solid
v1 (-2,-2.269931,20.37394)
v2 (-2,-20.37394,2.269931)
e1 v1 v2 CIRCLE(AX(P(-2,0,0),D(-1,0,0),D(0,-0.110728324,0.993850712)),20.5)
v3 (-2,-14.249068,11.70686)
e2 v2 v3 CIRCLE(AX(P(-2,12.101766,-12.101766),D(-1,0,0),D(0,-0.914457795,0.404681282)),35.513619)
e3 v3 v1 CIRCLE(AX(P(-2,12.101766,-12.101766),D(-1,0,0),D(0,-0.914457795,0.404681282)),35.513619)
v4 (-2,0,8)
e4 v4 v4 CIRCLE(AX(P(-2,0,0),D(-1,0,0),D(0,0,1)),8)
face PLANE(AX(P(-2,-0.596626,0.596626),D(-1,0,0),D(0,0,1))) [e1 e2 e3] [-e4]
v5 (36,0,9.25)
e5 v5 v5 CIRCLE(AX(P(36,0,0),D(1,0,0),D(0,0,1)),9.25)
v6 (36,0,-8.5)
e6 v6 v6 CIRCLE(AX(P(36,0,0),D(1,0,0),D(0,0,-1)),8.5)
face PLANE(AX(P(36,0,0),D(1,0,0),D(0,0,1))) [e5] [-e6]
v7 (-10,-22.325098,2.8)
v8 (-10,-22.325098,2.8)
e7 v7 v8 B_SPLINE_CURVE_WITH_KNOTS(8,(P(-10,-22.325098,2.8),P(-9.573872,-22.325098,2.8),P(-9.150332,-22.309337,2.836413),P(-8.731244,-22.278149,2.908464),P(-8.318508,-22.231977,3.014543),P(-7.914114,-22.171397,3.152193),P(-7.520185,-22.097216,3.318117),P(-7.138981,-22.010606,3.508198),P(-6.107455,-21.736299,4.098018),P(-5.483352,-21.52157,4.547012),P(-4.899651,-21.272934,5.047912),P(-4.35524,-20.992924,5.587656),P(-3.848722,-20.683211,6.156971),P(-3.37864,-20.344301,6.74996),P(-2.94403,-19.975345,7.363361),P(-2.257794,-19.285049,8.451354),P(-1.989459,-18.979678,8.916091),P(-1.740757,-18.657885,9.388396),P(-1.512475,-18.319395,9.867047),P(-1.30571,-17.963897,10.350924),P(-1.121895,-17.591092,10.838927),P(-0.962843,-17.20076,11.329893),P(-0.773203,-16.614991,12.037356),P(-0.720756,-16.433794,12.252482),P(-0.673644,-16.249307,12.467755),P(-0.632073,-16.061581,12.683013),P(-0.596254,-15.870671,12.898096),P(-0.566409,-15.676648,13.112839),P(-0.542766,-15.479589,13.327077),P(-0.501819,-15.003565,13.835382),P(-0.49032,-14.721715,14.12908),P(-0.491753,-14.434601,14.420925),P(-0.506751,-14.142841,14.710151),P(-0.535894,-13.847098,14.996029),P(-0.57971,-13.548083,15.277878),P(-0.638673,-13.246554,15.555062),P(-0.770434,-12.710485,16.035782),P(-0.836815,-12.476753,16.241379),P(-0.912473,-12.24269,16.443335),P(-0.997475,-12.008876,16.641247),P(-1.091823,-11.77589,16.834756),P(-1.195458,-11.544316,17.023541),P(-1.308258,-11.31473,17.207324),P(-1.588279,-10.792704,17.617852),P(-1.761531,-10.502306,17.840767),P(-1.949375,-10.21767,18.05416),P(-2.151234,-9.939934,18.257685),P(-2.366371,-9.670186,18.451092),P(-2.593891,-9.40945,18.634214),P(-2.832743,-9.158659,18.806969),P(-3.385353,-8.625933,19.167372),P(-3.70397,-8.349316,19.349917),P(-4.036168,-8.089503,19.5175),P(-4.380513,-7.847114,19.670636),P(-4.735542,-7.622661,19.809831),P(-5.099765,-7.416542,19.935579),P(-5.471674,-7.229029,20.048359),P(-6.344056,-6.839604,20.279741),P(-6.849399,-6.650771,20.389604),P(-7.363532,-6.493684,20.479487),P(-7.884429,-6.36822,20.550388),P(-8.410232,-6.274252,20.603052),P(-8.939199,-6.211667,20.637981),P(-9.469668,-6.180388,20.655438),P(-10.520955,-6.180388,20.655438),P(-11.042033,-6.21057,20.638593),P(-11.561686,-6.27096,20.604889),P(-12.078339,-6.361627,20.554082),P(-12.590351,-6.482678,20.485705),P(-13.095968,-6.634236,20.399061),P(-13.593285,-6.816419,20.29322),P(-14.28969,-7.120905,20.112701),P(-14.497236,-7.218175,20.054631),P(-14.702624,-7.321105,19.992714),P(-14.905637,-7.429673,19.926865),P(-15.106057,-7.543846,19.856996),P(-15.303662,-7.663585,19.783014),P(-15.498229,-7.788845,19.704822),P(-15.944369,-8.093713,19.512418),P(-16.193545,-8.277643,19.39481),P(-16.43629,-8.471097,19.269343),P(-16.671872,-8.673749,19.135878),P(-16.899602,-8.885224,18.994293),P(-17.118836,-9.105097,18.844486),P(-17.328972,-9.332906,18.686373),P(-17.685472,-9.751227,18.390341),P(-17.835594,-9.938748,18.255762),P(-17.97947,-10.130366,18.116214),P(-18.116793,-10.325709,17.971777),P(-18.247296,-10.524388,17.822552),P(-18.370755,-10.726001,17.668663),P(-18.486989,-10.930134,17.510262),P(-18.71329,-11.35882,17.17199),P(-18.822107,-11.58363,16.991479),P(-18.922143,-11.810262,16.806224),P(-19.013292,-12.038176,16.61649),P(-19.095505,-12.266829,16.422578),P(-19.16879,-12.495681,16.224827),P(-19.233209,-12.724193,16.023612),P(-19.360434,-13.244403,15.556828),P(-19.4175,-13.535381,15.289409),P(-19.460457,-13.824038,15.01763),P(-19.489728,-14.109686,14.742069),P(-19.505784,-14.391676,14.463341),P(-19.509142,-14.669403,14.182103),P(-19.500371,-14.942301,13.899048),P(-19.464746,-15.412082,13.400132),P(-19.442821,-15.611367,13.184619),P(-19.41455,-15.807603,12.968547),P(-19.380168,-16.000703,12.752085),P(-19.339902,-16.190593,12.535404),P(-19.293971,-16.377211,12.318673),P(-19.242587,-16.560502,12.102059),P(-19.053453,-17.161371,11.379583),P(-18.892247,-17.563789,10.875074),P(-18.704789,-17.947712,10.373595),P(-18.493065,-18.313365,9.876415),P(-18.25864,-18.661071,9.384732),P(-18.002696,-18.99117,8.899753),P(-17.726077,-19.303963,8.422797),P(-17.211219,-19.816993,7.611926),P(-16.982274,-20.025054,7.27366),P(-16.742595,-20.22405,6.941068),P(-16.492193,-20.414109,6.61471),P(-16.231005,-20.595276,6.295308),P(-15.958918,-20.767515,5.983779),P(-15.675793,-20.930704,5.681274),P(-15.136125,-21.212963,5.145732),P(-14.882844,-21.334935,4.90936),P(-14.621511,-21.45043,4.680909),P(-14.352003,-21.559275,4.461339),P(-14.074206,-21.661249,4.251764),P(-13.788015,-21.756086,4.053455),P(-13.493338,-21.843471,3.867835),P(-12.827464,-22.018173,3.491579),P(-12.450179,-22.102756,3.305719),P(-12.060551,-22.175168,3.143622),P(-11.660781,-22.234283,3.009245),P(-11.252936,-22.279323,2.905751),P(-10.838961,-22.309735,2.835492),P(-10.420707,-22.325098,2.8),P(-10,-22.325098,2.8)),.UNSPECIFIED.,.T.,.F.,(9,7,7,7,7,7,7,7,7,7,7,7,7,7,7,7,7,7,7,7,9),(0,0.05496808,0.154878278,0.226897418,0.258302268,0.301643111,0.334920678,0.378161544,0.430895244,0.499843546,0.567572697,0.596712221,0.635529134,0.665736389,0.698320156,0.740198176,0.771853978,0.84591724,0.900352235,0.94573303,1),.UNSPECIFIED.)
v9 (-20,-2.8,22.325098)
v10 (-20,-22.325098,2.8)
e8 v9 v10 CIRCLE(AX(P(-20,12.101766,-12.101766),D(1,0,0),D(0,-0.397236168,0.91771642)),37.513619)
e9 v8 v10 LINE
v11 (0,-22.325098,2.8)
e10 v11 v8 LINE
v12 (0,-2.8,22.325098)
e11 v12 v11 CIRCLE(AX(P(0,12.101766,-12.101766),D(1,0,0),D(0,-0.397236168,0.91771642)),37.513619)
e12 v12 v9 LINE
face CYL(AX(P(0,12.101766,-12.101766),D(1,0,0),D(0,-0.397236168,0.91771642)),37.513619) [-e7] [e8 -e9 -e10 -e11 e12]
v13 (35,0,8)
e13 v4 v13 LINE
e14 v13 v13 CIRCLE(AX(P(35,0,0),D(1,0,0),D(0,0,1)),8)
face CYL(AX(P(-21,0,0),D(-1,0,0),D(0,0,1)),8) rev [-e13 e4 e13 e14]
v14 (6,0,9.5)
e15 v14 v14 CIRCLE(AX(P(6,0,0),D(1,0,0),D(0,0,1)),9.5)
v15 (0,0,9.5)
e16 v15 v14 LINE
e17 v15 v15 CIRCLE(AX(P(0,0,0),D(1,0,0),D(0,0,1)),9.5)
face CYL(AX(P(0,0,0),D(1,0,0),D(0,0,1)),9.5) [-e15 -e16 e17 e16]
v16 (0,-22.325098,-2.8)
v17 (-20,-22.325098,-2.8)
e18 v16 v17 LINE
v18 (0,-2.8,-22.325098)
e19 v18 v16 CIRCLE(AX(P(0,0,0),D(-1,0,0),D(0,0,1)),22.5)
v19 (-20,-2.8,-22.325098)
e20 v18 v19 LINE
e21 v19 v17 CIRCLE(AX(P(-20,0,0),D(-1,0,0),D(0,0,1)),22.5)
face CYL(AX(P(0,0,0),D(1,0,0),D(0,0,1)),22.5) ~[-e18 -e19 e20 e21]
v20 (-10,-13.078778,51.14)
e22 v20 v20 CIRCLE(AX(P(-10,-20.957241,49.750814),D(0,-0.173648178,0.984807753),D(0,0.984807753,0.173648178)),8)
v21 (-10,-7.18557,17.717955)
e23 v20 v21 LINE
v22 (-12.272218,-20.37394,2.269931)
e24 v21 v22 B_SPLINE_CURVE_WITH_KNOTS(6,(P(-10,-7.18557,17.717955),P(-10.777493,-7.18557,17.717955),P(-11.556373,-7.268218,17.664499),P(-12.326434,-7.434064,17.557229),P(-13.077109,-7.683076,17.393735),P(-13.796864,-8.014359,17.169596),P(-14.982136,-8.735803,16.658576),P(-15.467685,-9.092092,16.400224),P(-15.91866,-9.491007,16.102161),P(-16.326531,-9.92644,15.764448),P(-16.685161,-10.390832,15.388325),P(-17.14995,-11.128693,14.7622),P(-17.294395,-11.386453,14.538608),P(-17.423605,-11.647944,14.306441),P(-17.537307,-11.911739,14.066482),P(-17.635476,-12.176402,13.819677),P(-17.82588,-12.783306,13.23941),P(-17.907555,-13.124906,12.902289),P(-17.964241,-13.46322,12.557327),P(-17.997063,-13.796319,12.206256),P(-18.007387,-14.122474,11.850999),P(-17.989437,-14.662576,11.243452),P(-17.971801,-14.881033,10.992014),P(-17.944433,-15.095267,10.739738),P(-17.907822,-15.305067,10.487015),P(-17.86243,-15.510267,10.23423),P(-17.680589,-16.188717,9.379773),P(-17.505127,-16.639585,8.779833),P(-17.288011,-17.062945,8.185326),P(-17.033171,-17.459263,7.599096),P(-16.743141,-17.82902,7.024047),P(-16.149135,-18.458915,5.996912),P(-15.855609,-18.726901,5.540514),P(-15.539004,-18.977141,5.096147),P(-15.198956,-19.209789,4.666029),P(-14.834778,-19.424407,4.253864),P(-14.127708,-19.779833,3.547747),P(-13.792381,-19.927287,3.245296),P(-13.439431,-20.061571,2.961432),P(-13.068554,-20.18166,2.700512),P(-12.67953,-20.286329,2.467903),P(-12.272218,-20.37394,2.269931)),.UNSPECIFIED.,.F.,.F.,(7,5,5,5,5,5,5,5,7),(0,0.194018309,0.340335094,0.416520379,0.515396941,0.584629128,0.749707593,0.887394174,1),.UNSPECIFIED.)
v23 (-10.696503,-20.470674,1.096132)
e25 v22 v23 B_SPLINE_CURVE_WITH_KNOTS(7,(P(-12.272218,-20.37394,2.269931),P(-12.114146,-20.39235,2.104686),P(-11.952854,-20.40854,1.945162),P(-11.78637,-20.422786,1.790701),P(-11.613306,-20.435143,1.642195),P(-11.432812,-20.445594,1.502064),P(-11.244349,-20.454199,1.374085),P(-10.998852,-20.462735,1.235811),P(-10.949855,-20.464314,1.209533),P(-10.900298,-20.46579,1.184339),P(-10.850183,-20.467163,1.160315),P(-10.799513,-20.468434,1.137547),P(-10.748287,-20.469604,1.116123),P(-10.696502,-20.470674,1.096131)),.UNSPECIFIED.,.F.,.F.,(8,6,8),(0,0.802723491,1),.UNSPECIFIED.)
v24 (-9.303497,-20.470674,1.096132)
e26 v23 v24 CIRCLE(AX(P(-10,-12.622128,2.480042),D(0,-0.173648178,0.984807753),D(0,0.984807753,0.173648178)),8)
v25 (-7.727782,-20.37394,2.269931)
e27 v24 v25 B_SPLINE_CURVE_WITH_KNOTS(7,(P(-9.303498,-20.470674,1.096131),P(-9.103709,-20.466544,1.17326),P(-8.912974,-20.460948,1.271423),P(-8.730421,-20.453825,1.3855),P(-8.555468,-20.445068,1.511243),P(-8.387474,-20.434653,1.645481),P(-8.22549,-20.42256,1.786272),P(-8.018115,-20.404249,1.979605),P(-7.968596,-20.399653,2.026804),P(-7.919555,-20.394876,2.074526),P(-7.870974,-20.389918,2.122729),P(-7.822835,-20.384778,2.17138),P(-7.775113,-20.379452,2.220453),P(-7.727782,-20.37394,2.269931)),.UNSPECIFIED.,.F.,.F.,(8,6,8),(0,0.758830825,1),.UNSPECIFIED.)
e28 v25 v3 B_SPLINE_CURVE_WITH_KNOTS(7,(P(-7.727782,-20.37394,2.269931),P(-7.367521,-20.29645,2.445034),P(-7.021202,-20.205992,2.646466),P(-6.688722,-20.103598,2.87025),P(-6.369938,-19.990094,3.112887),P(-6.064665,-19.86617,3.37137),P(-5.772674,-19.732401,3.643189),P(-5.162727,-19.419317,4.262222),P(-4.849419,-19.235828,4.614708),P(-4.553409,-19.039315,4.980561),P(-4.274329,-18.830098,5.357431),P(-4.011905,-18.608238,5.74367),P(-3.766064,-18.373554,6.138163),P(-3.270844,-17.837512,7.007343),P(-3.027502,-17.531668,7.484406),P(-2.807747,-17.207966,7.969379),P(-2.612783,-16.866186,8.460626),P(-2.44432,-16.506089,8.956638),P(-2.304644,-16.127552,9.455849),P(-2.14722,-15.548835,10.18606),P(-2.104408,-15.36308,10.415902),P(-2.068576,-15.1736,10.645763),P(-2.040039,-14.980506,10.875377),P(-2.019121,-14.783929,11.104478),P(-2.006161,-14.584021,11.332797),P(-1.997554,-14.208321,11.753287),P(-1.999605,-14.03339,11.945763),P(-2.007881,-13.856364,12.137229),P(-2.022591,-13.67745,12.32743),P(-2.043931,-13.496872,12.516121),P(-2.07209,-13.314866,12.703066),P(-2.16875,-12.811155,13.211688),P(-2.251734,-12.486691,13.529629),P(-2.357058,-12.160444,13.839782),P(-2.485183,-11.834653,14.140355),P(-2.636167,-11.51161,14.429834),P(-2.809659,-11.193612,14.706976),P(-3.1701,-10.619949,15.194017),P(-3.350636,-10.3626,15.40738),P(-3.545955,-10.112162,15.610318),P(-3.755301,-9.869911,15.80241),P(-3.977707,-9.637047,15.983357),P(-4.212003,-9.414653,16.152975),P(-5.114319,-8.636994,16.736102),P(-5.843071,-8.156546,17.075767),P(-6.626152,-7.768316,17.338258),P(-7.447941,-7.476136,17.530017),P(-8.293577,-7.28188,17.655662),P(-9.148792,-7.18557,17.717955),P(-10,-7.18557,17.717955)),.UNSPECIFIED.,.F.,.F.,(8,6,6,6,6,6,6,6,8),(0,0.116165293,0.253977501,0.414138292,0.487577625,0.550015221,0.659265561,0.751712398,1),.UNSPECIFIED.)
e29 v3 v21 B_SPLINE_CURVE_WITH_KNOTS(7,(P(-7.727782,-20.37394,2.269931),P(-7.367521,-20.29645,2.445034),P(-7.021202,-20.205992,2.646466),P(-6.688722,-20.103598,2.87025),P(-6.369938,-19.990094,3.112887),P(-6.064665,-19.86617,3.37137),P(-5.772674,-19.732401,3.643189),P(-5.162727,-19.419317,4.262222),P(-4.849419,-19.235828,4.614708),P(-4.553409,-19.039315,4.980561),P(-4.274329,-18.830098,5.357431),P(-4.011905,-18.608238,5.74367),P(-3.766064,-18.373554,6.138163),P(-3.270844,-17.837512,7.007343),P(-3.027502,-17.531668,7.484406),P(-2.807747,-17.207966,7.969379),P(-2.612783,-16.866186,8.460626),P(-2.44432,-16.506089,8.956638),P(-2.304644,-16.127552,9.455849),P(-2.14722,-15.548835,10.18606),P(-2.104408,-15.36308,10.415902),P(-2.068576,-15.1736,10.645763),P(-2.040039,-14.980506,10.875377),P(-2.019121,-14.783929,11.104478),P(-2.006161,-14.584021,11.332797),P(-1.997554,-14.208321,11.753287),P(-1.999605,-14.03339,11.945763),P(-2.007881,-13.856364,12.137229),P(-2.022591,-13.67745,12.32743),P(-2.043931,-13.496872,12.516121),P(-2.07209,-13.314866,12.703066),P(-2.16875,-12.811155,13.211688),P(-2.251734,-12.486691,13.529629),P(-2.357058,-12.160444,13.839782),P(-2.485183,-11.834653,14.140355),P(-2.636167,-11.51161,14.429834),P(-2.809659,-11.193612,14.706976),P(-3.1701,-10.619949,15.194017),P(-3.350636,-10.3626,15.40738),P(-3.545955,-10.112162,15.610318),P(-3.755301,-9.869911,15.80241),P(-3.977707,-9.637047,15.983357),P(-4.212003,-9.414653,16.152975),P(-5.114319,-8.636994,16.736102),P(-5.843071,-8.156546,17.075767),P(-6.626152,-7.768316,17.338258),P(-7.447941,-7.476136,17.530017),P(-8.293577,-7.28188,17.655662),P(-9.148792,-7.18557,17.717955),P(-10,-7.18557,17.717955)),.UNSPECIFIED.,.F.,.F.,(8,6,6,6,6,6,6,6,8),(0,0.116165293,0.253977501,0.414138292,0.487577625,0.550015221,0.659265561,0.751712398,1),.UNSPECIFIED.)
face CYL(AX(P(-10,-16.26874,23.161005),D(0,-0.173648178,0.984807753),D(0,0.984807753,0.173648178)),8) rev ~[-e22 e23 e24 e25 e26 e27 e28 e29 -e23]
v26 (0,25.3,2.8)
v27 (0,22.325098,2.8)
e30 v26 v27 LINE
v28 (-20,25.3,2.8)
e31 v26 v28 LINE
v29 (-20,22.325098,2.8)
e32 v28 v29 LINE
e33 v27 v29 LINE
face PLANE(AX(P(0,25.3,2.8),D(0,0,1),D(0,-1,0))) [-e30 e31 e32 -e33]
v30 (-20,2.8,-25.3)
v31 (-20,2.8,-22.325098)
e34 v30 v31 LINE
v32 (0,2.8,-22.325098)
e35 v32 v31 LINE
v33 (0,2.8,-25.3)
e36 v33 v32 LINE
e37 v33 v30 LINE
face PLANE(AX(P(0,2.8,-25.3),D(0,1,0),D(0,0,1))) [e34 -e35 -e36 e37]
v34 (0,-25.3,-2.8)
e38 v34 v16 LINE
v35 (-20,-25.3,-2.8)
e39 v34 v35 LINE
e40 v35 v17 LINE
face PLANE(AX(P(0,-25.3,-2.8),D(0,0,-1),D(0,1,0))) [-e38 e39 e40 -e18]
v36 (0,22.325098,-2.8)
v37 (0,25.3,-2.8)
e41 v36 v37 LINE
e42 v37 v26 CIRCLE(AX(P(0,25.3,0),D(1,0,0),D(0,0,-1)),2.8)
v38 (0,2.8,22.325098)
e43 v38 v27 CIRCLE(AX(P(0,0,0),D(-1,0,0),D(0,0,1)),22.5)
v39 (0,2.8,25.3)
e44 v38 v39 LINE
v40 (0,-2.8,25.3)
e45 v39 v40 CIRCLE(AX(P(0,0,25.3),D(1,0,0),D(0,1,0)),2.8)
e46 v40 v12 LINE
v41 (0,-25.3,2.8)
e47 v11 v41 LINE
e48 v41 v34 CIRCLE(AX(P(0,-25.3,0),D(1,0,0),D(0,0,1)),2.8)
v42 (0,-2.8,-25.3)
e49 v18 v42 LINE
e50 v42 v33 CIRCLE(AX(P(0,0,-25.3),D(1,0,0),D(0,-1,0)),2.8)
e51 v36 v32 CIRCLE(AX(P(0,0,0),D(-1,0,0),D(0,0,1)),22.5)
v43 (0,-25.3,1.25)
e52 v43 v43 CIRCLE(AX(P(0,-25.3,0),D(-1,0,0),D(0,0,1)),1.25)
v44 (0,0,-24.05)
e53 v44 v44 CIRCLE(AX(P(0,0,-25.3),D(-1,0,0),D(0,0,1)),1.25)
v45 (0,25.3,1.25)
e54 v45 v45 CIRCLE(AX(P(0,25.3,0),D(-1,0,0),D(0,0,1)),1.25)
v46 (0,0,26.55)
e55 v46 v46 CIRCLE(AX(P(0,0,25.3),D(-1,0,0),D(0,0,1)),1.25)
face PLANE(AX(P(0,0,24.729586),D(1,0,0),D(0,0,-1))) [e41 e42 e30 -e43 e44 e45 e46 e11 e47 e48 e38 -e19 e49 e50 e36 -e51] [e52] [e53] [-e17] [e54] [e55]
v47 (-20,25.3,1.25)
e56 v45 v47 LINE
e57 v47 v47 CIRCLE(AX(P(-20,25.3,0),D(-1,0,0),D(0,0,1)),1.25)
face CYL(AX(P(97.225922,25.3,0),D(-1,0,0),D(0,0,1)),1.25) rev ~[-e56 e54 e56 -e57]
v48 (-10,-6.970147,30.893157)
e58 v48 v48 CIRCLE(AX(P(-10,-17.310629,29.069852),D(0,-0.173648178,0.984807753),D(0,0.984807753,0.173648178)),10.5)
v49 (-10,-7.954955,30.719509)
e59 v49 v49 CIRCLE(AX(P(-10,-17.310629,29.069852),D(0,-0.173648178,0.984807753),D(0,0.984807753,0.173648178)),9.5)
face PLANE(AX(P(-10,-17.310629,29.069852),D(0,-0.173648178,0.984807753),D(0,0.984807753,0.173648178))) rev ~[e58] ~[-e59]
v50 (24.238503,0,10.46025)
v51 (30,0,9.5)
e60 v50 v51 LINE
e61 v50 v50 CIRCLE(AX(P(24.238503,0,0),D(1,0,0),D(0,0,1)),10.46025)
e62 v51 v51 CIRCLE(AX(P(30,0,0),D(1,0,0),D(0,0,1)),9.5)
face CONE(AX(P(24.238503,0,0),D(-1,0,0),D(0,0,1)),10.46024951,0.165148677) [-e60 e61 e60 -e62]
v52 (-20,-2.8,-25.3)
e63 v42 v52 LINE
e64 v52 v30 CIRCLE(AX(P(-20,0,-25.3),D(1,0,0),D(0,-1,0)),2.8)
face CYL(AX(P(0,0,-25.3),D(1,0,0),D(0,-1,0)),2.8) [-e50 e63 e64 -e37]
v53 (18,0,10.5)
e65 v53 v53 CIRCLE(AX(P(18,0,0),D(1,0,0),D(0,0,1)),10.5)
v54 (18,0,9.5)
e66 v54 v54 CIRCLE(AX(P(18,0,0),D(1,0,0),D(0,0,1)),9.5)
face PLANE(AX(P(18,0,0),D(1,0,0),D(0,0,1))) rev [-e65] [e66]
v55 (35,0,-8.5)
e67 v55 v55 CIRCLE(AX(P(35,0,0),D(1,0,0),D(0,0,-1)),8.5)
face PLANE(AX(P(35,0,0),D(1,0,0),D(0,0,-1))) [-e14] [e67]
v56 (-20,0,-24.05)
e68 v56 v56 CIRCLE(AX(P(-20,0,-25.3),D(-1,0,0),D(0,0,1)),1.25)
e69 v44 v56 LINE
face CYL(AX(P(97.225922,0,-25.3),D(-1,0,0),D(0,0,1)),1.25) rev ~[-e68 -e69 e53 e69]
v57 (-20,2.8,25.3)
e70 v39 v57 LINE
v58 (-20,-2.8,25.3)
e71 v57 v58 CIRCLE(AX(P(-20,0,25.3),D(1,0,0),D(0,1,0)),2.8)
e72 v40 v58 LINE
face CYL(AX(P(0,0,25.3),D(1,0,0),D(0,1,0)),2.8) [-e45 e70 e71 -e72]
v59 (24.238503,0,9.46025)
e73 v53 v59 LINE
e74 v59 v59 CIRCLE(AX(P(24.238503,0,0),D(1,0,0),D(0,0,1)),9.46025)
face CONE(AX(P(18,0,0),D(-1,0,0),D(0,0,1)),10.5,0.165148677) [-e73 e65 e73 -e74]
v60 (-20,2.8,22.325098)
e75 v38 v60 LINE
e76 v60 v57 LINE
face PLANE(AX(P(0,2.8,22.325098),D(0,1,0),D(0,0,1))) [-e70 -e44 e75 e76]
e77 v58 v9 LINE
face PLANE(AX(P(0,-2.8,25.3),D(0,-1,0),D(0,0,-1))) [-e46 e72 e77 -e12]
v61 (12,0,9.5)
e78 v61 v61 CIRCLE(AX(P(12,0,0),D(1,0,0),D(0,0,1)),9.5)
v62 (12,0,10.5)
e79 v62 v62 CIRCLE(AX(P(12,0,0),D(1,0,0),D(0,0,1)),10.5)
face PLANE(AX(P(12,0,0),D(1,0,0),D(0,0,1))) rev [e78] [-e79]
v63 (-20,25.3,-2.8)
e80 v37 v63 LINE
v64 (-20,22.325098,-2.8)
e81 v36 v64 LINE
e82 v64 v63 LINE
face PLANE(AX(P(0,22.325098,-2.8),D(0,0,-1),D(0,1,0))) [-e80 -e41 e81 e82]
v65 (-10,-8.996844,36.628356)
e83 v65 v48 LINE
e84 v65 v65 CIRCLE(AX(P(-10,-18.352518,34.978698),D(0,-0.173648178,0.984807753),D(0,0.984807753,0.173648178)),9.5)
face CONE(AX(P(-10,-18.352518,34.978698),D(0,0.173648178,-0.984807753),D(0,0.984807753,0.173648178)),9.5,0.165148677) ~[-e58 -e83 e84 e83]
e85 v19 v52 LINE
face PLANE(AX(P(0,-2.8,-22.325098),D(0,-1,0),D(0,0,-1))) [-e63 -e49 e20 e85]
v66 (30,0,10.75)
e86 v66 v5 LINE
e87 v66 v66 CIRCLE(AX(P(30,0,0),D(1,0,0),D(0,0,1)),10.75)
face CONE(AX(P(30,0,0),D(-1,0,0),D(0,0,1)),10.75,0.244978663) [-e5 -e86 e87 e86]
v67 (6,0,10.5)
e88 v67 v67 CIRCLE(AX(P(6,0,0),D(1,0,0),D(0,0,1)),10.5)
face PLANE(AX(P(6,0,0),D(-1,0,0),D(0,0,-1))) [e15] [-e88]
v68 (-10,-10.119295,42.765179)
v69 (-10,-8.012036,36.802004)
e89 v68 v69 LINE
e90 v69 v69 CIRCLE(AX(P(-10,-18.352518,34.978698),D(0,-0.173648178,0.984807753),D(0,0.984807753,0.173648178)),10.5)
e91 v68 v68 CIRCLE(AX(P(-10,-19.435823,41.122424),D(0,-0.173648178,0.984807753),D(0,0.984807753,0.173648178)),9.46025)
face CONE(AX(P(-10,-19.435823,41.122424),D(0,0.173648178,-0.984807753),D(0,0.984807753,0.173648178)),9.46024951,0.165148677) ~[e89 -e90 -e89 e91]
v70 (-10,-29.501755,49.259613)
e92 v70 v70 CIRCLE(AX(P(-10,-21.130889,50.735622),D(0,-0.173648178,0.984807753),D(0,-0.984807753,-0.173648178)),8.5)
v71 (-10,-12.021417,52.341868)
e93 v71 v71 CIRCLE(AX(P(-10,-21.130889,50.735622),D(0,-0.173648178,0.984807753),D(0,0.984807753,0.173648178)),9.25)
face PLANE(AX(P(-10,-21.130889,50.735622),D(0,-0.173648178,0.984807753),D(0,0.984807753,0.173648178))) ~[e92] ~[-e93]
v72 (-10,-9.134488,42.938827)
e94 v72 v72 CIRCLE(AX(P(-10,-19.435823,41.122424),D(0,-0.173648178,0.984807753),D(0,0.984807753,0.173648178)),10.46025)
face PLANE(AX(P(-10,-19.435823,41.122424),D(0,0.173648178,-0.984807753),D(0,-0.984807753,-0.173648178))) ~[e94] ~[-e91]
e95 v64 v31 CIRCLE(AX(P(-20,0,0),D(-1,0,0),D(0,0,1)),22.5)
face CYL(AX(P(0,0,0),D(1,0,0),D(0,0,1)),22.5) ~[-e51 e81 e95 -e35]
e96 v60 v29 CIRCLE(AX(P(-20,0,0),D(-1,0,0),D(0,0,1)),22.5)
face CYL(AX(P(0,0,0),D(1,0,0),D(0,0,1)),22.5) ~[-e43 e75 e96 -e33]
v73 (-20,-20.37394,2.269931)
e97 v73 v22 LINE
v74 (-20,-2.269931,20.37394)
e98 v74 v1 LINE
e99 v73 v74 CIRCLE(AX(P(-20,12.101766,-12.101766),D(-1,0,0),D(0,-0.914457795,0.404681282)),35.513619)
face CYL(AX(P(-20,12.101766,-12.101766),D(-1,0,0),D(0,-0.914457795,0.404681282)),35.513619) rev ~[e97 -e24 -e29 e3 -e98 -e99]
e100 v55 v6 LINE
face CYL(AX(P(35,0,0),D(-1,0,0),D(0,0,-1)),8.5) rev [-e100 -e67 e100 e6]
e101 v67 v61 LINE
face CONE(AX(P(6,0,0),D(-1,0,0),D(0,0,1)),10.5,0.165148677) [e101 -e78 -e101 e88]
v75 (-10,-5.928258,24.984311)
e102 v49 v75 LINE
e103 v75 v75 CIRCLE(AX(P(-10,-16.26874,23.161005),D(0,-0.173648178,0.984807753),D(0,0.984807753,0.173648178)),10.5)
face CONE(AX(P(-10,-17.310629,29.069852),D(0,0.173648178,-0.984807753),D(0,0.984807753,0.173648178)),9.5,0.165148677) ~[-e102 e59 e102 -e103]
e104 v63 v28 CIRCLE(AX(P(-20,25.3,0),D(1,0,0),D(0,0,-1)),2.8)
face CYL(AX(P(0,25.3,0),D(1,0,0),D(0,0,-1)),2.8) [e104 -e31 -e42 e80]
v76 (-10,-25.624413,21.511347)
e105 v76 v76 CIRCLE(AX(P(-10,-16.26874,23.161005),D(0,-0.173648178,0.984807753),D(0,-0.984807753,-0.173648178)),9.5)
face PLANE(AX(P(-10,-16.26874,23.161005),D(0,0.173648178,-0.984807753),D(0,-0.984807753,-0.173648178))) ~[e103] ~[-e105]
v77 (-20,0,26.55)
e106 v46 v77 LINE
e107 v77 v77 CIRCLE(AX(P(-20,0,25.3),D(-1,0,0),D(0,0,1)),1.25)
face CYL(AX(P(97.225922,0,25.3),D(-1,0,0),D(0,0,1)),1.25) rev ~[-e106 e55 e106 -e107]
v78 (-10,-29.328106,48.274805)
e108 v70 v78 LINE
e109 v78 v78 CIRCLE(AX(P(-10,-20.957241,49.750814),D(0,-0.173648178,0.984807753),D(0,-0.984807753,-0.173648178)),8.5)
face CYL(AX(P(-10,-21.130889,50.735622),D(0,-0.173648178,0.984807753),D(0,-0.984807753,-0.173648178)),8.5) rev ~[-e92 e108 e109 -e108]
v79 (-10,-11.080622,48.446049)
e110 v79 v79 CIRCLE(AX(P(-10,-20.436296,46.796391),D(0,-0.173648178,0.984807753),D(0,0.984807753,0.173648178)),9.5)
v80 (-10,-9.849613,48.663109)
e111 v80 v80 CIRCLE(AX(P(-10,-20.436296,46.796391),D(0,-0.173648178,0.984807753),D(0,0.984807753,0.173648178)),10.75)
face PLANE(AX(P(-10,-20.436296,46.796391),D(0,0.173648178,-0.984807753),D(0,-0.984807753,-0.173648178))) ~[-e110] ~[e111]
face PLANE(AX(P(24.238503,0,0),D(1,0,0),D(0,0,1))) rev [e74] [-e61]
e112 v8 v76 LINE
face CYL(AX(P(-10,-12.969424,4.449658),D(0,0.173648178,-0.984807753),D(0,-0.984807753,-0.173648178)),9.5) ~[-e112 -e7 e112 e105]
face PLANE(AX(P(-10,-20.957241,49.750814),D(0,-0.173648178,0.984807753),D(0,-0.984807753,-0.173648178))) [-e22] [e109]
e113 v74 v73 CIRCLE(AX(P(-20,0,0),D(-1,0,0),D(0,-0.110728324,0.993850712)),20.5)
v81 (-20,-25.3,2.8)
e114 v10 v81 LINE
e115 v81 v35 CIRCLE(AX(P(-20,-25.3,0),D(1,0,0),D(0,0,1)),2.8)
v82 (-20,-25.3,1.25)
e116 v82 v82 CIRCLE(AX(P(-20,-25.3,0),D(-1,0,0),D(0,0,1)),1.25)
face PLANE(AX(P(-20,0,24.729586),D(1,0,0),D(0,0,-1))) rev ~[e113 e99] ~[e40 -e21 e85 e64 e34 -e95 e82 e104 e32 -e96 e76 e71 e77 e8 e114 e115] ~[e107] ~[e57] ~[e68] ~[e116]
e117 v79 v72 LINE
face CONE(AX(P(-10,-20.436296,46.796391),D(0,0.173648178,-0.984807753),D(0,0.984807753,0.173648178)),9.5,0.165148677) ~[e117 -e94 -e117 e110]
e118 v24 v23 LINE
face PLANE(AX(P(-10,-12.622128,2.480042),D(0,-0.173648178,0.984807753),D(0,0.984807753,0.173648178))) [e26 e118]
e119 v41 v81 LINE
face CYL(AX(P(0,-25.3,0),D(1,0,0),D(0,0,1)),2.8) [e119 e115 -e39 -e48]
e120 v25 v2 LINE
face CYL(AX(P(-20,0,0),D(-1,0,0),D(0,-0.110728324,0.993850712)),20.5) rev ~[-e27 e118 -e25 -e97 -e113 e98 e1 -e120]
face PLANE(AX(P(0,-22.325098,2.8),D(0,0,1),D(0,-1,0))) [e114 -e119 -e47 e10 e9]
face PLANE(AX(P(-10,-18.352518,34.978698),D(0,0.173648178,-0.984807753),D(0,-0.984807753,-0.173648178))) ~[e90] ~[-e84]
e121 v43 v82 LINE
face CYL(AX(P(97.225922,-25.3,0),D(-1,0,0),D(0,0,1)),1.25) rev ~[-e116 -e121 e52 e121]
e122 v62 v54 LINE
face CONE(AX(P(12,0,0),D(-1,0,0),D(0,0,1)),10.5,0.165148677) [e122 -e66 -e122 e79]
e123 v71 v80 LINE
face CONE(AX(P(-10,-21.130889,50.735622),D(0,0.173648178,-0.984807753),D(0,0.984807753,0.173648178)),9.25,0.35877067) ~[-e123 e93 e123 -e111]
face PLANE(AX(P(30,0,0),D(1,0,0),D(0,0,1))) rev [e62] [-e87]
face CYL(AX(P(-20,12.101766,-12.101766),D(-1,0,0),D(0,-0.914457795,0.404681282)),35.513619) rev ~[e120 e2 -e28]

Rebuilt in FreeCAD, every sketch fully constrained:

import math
import FreeCAD as App
import Part
import Sketcher
from FreeCAD import Vector
Q = App.Units.Quantity

doc = App.newDocument("Part")
params = doc.addObject("Spreadsheet::Sheet", "Params")
for row, (alias, value) in enumerate([
    ("sketch1_width", "6 mm"),
    ("sketch1_width2", "36 mm"),
    ("sketch1_height", "1 mm"),
    ("sketch1_height2", "1.5 mm"),
    ("sketch1_height3", "1.25 mm"),
    ("revolution_angle", "360 deg"),
    ("sketch2_diameter", "45 mm"),
    ("pad1_length", "20 mm"),
    ("sketch3_diameter", "17 mm"),
    ("sketch3_diameter2", "16 mm"),
    ("pocket1_length", "1 mm"),
    ("sketch4_radius", "22.5 mm"),
    ("sketch4_radius2", "2.8 mm"),
    ("pad2_length", "20 mm"),
    ("sketch5_diameter", "2.5 mm"),
    ("hole_diameter", "2.5 mm"),
    ("sketch6_radius", "22.5 mm"),
    ("sketch7_diameter", "19 mm"),
    ("pad3_length", "19 mm"),
    ("sketch8_length", "1 mm"),
    ("sketch8_length2", "28 mm"),
    ("sketch8_length3", "1 mm"),
    ("sketch8_length4", "1 mm"),
    ("sketch8_length5", "28 mm"),
    ("revolution2_angle", "360 deg"),
    ("sketch9_radius", "20.5 mm"),
    ("pocket3_length", "18 mm"),
    ("sketch10_diameter", "16 mm"),
    ("pocket4_length", "21 mm"),
    ("sketch11_diameter", "16 mm"),
    ("pocket5_length", "21 mm"),
    ("sketch12_diameter", "17 mm"),
    ("sketch12_diameter2", "16 mm"),
    ("pocket6_length", "1 mm"),
], start=1):
    params.set(f"A{row}", alias)
    params.set(f"B{row}", "=" + value)
    params.setAlias(f"B{row}", alias)

body = doc.addObject("PartDesign::Body", "Body")

# Sketch on XY plane
sketch1 = body.newObject("Sketcher::SketchObject", "Sketch")
sketch1.AttachmentSupport = (doc.getObject("XY_Plane"), [""])
sketch1.MapMode = "FlatFace"
sketch1.addGeometry(Part.LineSegment(Vector(6, 10.5, 0), Vector(6, 9.5, 0)), False)
sketch1.addGeometry(Part.LineSegment(Vector(6, 9.5, 0), Vector(0, 9.5, 0)), False)
sketch1.addGeometry(Part.LineSegment(Vector(0, 9.5, 0), Vector(0, 8, 0)), False)
sketch1.addGeometry(Part.LineSegment(Vector(0, 8, 0), Vector(36, 8, 0)), False)
sketch1.addGeometry(Part.LineSegment(Vector(36, 8, 0), Vector(36, 9.2, 0)), False)
sketch1.addGeometry(Part.LineSegment(Vector(36, 9.2, 0), Vector(30, 10.8, 0)), False)
sketch1.addGeometry(Part.LineSegment(Vector(30, 10.8, 0), Vector(30, 9.5, 0)), False)
sketch1.addGeometry(Part.LineSegment(Vector(30, 9.5, 0), Vector(24.2, 10.5, 0)), False)
sketch1.addGeometry(Part.LineSegment(Vector(24.2, 10.5, 0), Vector(24.2, 9.5, 0)), False)
sketch1.addGeometry(Part.LineSegment(Vector(24.2, 9.5, 0), Vector(18, 10.5, 0)), False)
sketch1.addGeometry(Part.LineSegment(Vector(18, 10.5, 0), Vector(18, 9.5, 0)), False)
sketch1.addGeometry(Part.LineSegment(Vector(18, 9.5, 0), Vector(12, 10.5, 0)), False)
sketch1.addGeometry(Part.LineSegment(Vector(12, 10.5, 0), Vector(12, 9.5, 0)), False)
sketch1.addGeometry(Part.LineSegment(Vector(12, 9.5, 0), Vector(6, 10.5, 0)), False)
sketch1.addConstraint(Sketcher.Constraint("Coincident", 0, 2, 1, 1))
sketch1.addConstraint(Sketcher.Constraint("Coincident", 1, 2, 2, 1))
sketch1.addConstraint(Sketcher.Constraint("Coincident", 2, 2, 3, 1))
sketch1.addConstraint(Sketcher.Constraint("Coincident", 3, 2, 4, 1))
sketch1.addConstraint(Sketcher.Constraint("Coincident", 4, 2, 5, 1))
sketch1.addConstraint(Sketcher.Constraint("Coincident", 5, 2, 6, 1))
sketch1.addConstraint(Sketcher.Constraint("Coincident", 6, 2, 7, 1))
sketch1.addConstraint(Sketcher.Constraint("Coincident", 7, 2, 8, 1))
sketch1.addConstraint(Sketcher.Constraint("Coincident", 8, 2, 9, 1))
sketch1.addConstraint(Sketcher.Constraint("Coincident", 9, 2, 10, 1))
sketch1.addConstraint(Sketcher.Constraint("Coincident", 10, 2, 11, 1))
sketch1.addConstraint(Sketcher.Constraint("Coincident", 11, 2, 12, 1))
sketch1.addConstraint(Sketcher.Constraint("Coincident", 12, 2, 13, 1))
sketch1.addConstraint(Sketcher.Constraint("Coincident", 13, 2, 0, 1))
sketch1.addConstraint(Sketcher.Constraint("Vertical", 0))
sketch1.addConstraint(Sketcher.Constraint("Horizontal", 1))
sketch1.addConstraint(Sketcher.Constraint("Vertical", 2))
sketch1.addConstraint(Sketcher.Constraint("Horizontal", 3))
sketch1.addConstraint(Sketcher.Constraint("Vertical", 4))
sketch1.addConstraint(Sketcher.Constraint("Vertical", 6))
sketch1.addConstraint(Sketcher.Constraint("Vertical", 8))
sketch1.addConstraint(Sketcher.Constraint("Vertical", 10))
sketch1.addConstraint(Sketcher.Constraint("Vertical", 12))
sketch1.addConstraint(Sketcher.Constraint("PointOnObject", 1, 2, -2))
sketch1.addConstraint(Sketcher.Constraint("Parallel", 7, 9))
sketch1.addConstraint(Sketcher.Constraint("Parallel", 9, 11))
sketch1.addConstraint(Sketcher.Constraint("Parallel", 11, 13))
sketch1.addConstraint(Sketcher.Constraint("Horizontal", 1, 2, 6, 2))
sketch1.addConstraint(Sketcher.Constraint("Horizontal", 6, 2, 10, 2))
sketch1.addConstraint(Sketcher.Constraint("Horizontal", 9, 2, 11, 2))
sketch1.addConstraint(Sketcher.Constraint("Horizontal", 10, 2, 12, 2))
sketch1.addConstraint(Sketcher.Constraint("Horizontal", 11, 2, 13, 2))
sketch1.addConstraint(Sketcher.Constraint("Equal", 4, 6))
sketch1.addConstraint(Sketcher.Constraint("Equal", 0, 8))
sketch1.addConstraint(Sketcher.Constraint("DistanceX", 1, 2, 1, 1, Q("6 mm")))
sketch1.addConstraint(Sketcher.Constraint("DistanceX", 3, 1, 3, 2, Q("36 mm")))
sketch1.addConstraint(Sketcher.Constraint("DistanceY", 0, 2, 0, 1, Q("1 mm")))
sketch1.addConstraint(Sketcher.Constraint("DistanceY", 2, 2, 2, 1, Q("1.5 mm")))
sketch1.addConstraint(Sketcher.Constraint("DistanceY", -1, 1, 2, 2, Q("8 mm")))
sketch1.addConstraint(Sketcher.Constraint("DistanceX", -1, 1, 5, 2, Q("30 mm")))
sketch1.addConstraint(Sketcher.Constraint("DistanceY", 4, 1, 4, 2, Q("1.25 mm")))
sketch1.addConstraint(Sketcher.Constraint("Distance", 7, Q("5.84097 mm")))
sketch1.setExpression("Constraints[34]", "Params.sketch1_width")
sketch1.setExpression("Constraints[35]", "Params.sketch1_width2")
sketch1.setExpression("Constraints[36]", "Params.sketch1_height")
sketch1.setExpression("Constraints[37]", "Params.sketch1_height2")
sketch1.setExpression("Constraints[40]", "Params.sketch1_height3")
revolution = body.newObject("PartDesign::Revolution", "Revolution")
revolution.Profile = sketch1
revolution.ReferenceAxis = (sketch1, ["H_Axis"])
revolution.setExpression("Angle", "Params.revolution_angle")

# Sketch on YZ plane
sketch2 = body.newObject("Sketcher::SketchObject", "Sketch001")
sketch2.AttachmentSupport = (doc.getObject("YZ_Plane"), [""])
sketch2.MapMode = "FlatFace"
sketch2.addGeometry(Part.Circle(Vector(0, 0, 0), Vector(0, 0, 1), 22), False)
sketch2.addConstraint(Sketcher.Constraint("Coincident", 0, 3, -1, 1))
sketch2.addConstraint(Sketcher.Constraint("Diameter", 0, Q("45 mm")))
sketch2.setExpression("Constraints[1]", "Params.sketch2_diameter")
pad1 = body.newObject("PartDesign::Pad", "Pad")
pad1.Profile = sketch2
pad1.setExpression("Length", "Params.pad1_length")
pad1.Reversed = True

# Sketch on YZ plane
sketch3 = body.newObject("Sketcher::SketchObject", "Sketch002")
sketch3.AttachmentSupport = (doc.getObject("YZ_Plane"), [""])
sketch3.MapMode = "FlatFace"
sketch3.AttachmentOffset = App.Placement(Vector(0, 0, 35), App.Rotation())
sketch3.addGeometry(Part.Circle(Vector(0, 0, 0), Vector(0, 0, 1), 8), False)
sketch3.addGeometry(Part.Circle(Vector(0, 0, 0), Vector(0, 0, 1), 8), False)
sketch3.addConstraint(Sketcher.Constraint("Coincident", 0, 3, -1, 1))
sketch3.addConstraint(Sketcher.Constraint("Coincident", 1, 3, -1, 1))
sketch3.addConstraint(Sketcher.Constraint("Diameter", 0, Q("17 mm")))
sketch3.addConstraint(Sketcher.Constraint("Diameter", 1, Q("16 mm")))
sketch3.setExpression("Constraints[2]", "Params.sketch3_diameter")
sketch3.setExpression("Constraints[3]", "Params.sketch3_diameter2")
pocket1 = body.newObject("PartDesign::Pocket", "Pocket")
pocket1.Profile = sketch3
pocket1.setExpression("Length", "Params.pocket1_length")
pocket1.Reversed = True

# Sketch on YZ plane
sketch4 = body.newObject("Sketcher::SketchObject", "Sketch003")
sketch4.AttachmentSupport = (doc.getObject("YZ_Plane"), [""])
sketch4.MapMode = "FlatFace"
sketch4.addGeometry(Part.LineSegment(Vector(2.8, -25.3, 0), Vector(2.8, -22.3, 0)), False)
sketch4.addGeometry(Part.ArcOfCircle(Part.Circle(Vector(0, 0, 0), Vector(0, 0, 1), 22.5), math.radians(-97.15), math.radians(-82.85)), False)
sketch4.addGeometry(Part.LineSegment(Vector(-2.8, -22.3, 0), Vector(-2.8, -25.3, 0)), False)
sketch4.addGeometry(Part.ArcOfCircle(Part.Circle(Vector(0, -25.3, 0), Vector(0, 0, 1), 2.8), math.radians(180), math.radians(360)), False)
sketch4.addGeometry(Part.LineSegment(Vector(25.3, 2.8, 0), Vector(22.3, 2.8, 0)), False)
sketch4.addGeometry(Part.ArcOfCircle(Part.Circle(Vector(0, 0, 0), Vector(0, 0, 1), 22.5), math.radians(-7.15), math.radians(7.15)), False)
sketch4.addGeometry(Part.LineSegment(Vector(22.3, -2.8, 0), Vector(25.3, -2.8, 0)), False)
sketch4.addGeometry(Part.ArcOfCircle(Part.Circle(Vector(25.3, 0, 0), Vector(0, 0, 1), 2.8), math.radians(-90), math.radians(90)), False)
sketch4.addGeometry(Part.LineSegment(Vector(-25.3, -2.8, 0), Vector(-22.3, -2.8, 0)), False)
sketch4.addGeometry(Part.ArcOfCircle(Part.Circle(Vector(0, 0, 0), Vector(0, 0, 1), 22.5), math.radians(172.85), math.radians(187.15)), False)
sketch4.addGeometry(Part.LineSegment(Vector(-22.3, 2.8, 0), Vector(-25.3, 2.8, 0)), False)
sketch4.addGeometry(Part.ArcOfCircle(Part.Circle(Vector(-25.3, 0, 0), Vector(0, 0, 1), 2.8), math.radians(90), math.radians(270)), False)
sketch4.addGeometry(Part.LineSegment(Vector(-2.8, 25.3, 0), Vector(-2.8, 22.3, 0)), False)
sketch4.addGeometry(Part.ArcOfCircle(Part.Circle(Vector(0, 0, 0), Vector(0, 0, 1), 22.5), math.radians(82.85), math.radians(97.15)), False)
sketch4.addGeometry(Part.LineSegment(Vector(2.8, 22.3, 0), Vector(2.8, 25.3, 0)), False)
sketch4.addGeometry(Part.ArcOfCircle(Part.Circle(Vector(0, 25.3, 0), Vector(0, 0, 1), 2.8), math.radians(0), math.radians(180)), False)
sketch4.addConstraint(Sketcher.Constraint("Coincident", 0, 2, 1, 2))
sketch4.addConstraint(Sketcher.Constraint("Coincident", 1, 1, 2, 1))
sketch4.addConstraint(Sketcher.Constraint("Tangent", 2, 2, 3, 1))
sketch4.addConstraint(Sketcher.Constraint("Tangent", 3, 2, 0, 1))
sketch4.addConstraint(Sketcher.Constraint("Coincident", 4, 2, 5, 2))
sketch4.addConstraint(Sketcher.Constraint("Coincident", 5, 1, 6, 1))
sketch4.addConstraint(Sketcher.Constraint("Tangent", 6, 2, 7, 1))
sketch4.addConstraint(Sketcher.Constraint("Tangent", 7, 2, 4, 1))
sketch4.addConstraint(Sketcher.Constraint("Coincident", 8, 2, 9, 2))
sketch4.addConstraint(Sketcher.Constraint("Coincident", 9, 1, 10, 1))
sketch4.addConstraint(Sketcher.Constraint("Tangent", 10, 2, 11, 1))
sketch4.addConstraint(Sketcher.Constraint("Tangent", 11, 2, 8, 1))
sketch4.addConstraint(Sketcher.Constraint("Coincident", 12, 2, 13, 2))
sketch4.addConstraint(Sketcher.Constraint("Coincident", 13, 1, 14, 1))
sketch4.addConstraint(Sketcher.Constraint("Tangent", 14, 2, 15, 1))
sketch4.addConstraint(Sketcher.Constraint("Tangent", 15, 2, 12, 1))
sketch4.addConstraint(Sketcher.Constraint("Vertical", 0))
sketch4.addConstraint(Sketcher.Constraint("Vertical", 2))
sketch4.addConstraint(Sketcher.Constraint("Horizontal", 4))
sketch4.addConstraint(Sketcher.Constraint("Horizontal", 6))
sketch4.addConstraint(Sketcher.Constraint("Horizontal", 8))
sketch4.addConstraint(Sketcher.Constraint("Horizontal", 10))
sketch4.addConstraint(Sketcher.Constraint("Vertical", 12))
sketch4.addConstraint(Sketcher.Constraint("Vertical", 14))
sketch4.addConstraint(Sketcher.Constraint("Coincident", 1, 3, -1, 1))
sketch4.addConstraint(Sketcher.Constraint("Coincident", 5, 3, -1, 1))
sketch4.addConstraint(Sketcher.Constraint("Coincident", 9, 3, -1, 1))
sketch4.addConstraint(Sketcher.Constraint("Coincident", 13, 3, -1, 1))
sketch4.addConstraint(Sketcher.Constraint("Equal", 1, 5))
sketch4.addConstraint(Sketcher.Constraint("Equal", 3, 7))
sketch4.addConstraint(Sketcher.Constraint("Equal", 5, 9))
sketch4.addConstraint(Sketcher.Constraint("Equal", 7, 11))
sketch4.addConstraint(Sketcher.Constraint("Equal", 9, 13))
sketch4.addConstraint(Sketcher.Constraint("Equal", 11, 15))
sketch4.addConstraint(Sketcher.Constraint("Symmetric", 7, 3, 11, 3, -1, 1))
sketch4.addConstraint(Sketcher.Constraint("Symmetric", 3, 3, 15, 3, -1, 1))
sketch4.addConstraint(Sketcher.Constraint("PointOnObject", 3, 3, -2))
sketch4.addConstraint(Sketcher.Constraint("PointOnObject", 7, 3, -1))
sketch4.addConstraint(Sketcher.Constraint("Equal", 10, 0))
sketch4.addConstraint(Sketcher.Constraint("Radius", 1, Q("22.5 mm")))
sketch4.addConstraint(Sketcher.Constraint("Radius", 3, Q("2.8 mm")))
sketch4.addConstraint(Sketcher.Constraint("DistanceY", 3, 3, -1, 1, Q("25.3 mm")))
sketch4.setExpression("Constraints[39]", "Params.sketch4_radius")
sketch4.setExpression("Constraints[40]", "Params.sketch4_radius2")
pad2 = body.newObject("PartDesign::Pad", "Pad001")
pad2.Profile = sketch4
pad2.setExpression("Length", "Params.pad2_length")
pad2.Reversed = True

# Sketch on YZ plane
sketch5 = body.newObject("Sketcher::SketchObject", "Sketch004")
sketch5.AttachmentSupport = (doc.getObject("YZ_Plane"), [""])
sketch5.MapMode = "FlatFace"
sketch5.addGeometry(Part.Circle(Vector(25.3, 0, 0), Vector(0, 0, 1), 1.2), False)
sketch5.addGeometry(Part.Circle(Vector(0, 25.3, 0), Vector(0, 0, 1), 1.2), False)
sketch5.addGeometry(Part.Circle(Vector(-25.3, 0, 0), Vector(0, 0, 1), 1.2), False)
sketch5.addGeometry(Part.Circle(Vector(0, -25.3, 0), Vector(0, 0, 1), 1.2), False)
sketch5.addConstraint(Sketcher.Constraint("Equal", 0, 1))
sketch5.addConstraint(Sketcher.Constraint("Equal", 1, 2))
sketch5.addConstraint(Sketcher.Constraint("Equal", 2, 3))
sketch5.addConstraint(Sketcher.Constraint("Symmetric", 0, 3, 2, 3, -1, 1))
sketch5.addConstraint(Sketcher.Constraint("Symmetric", 1, 3, 3, 3, -1, 1))
sketch5.addConstraint(Sketcher.Constraint("PointOnObject", 0, 3, -1))
sketch5.addConstraint(Sketcher.Constraint("PointOnObject", 1, 3, -2))
sketch5.addConstraint(Sketcher.Constraint("Diameter", 0, Q("2.5 mm")))
sketch5.addConstraint(Sketcher.Constraint("DistanceX", -1, 1, 0, 3, Q("25.3 mm")))
sketch5.addConstraint(Sketcher.Constraint("DistanceY", -1, 1, 1, 3, Q("25.3 mm")))
sketch5.setExpression("Constraints[7]", "Params.sketch5_diameter")
doc.recompute()
hole = body.newObject("PartDesign::Hole", "Hole")
hole.Profile = sketch5
hole.ThreadType = "None"
hole.setExpression("Diameter", "Params.hole_diameter")
hole.DepthType = "ThroughAll"

# Sketch on YZ plane
sketch6 = body.newObject("Sketcher::SketchObject", "Sketch005")
sketch6.AttachmentSupport = (doc.getObject("YZ_Plane"), [""])
sketch6.MapMode = "FlatFace"
sketch6.addGeometry(Part.ArcOfCircle(Part.Circle(Vector(12, -12, 0), Vector(0, 0, 1), 38), math.radians(113), math.radians(157)), False)
sketch6.addGeometry(Part.ArcOfCircle(Part.Circle(Vector(0, 0, 0), Vector(0, 0, 1), 22), math.radians(97), math.radians(173)), False)
sketch6.addConstraint(Sketcher.Constraint("Coincident", 0, 1, 1, 1))
sketch6.addConstraint(Sketcher.Constraint("Coincident", 1, 2, 0, 2))
sketch6.addConstraint(Sketcher.Constraint("Coincident", 1, 3, -1, 1))
sketch6.addConstraint(Sketcher.Constraint("Radius", 1, Q("22.5 mm")))
sketch6.addConstraint(Sketcher.Constraint("DistanceX", 0, 1, -1, 1, Q("2.8 mm")))
sketch6.addConstraint(Sketcher.Constraint("DistanceY", -1, 1, 1, 2, Q("2.8 mm")))
sketch6.addConstraint(Sketcher.Constraint("Radius", 0, Q("37.513619 mm")))
sketch6.setExpression("Constraints[3]", "Params.sketch6_radius")
pocket2 = body.newObject("PartDesign::Pocket", "Pocket001")
pocket2.Profile = sketch6
pocket2.Type = "ThroughAll"

# Sketch on an angled plane
sketch7 = body.newObject("Sketcher::SketchObject", "Sketch006")
sketch7.Placement = App.Placement(Vector(0, -1.152012, 6.533386), App.Rotation(Vector(1, 0, 0), Vector(0, 0.984807753, 0.173648178), Vector(0, -0.173648178, 0.984807753), "ZXY"))
sketch7.addGeometry(Part.Circle(Vector(-10, -12, 0), Vector(0, 0, 1), 10), False)
sketch7.addConstraint(Sketcher.Constraint("Diameter", 0, Q("19 mm")))
sketch7.addConstraint(Sketcher.Constraint("DistanceX", 0, 3, -1, 1, Q("10 mm")))
sketch7.addConstraint(Sketcher.Constraint("DistanceY", 0, 3, -1, 1, Q("11.999715 mm")))
sketch7.setExpression("Constraints[0]", "Params.sketch7_diameter")
pad3 = body.newObject("PartDesign::Pad", "Pad002")
pad3.Profile = sketch7
pad3.setExpression("Length", "Params.pad3_length")

# Sketch on YZ plane
sketch8 = body.newObject("Sketcher::SketchObject", "Sketch007")
sketch8.AttachmentSupport = (doc.getObject("YZ_Plane"), [""])
sketch8.MapMode = "FlatFace"
sketch8.AttachmentOffset = App.Placement(Vector(0, 0, -10), App.Rotation())
sketch8.addGeometry(Part.LineSegment(Vector(-27.65111, 27.246546, 0), Vector(-26.666302, 27.420194, 0)), False)
sketch8.addGeometry(Part.LineSegment(Vector(-26.666302, 27.420194, 0), Vector(-26.609221, 21.337699, 0)), False)
sketch8.addGeometry(Part.LineSegment(Vector(-26.609221, 21.337699, 0), Vector(-24.147202, 21.77182, 0)), False)
sketch8.addGeometry(Part.LineSegment(Vector(-24.147202, 21.77182, 0), Vector(-29.009351, 49.346437, 0)), False)
sketch8.addGeometry(Part.LineSegment(Vector(-29.009351, 49.346437, 0), Vector(-30.24036, 49.129376, 0)), False)
sketch8.addGeometry(Part.LineSegment(Vector(-30.24036, 49.129376, 0), Vector(-31.022979, 44.929673, 0)), False)
sketch8.addGeometry(Part.LineSegment(Vector(-31.022979, 44.929673, 0), Vector(-29.79197, 45.146733, 0)), False)
sketch8.addGeometry(Part.LineSegment(Vector(-29.79197, 45.146733, 0), Vector(-29.737157, 39.306021, 0)), False)
sketch8.addGeometry(Part.LineSegment(Vector(-29.737157, 39.306021, 0), Vector(-28.75235, 39.479669, 0)), False)
sketch8.addGeometry(Part.LineSegment(Vector(-28.75235, 39.479669, 0), Vector(-28.692999, 33.155392, 0)), False)
sketch8.addGeometry(Part.LineSegment(Vector(-28.692999, 33.155392, 0), Vector(-27.708191, 33.32904, 0)), False)
sketch8.addGeometry(Part.LineSegment(Vector(-27.708191, 33.32904, 0), Vector(-27.65111, 27.246546, 0)), False)
sketch8.addGeometry(Part.LineSegment(Vector(-16.26874, 23.161005, 0), Vector(-21.130889, 50.735622, 0)), True)  # axis
sketch8.addConstraint(Sketcher.Constraint("Coincident", 0, 2, 1, 1))
sketch8.addConstraint(Sketcher.Constraint("Coincident", 1, 2, 2, 1))
sketch8.addConstraint(Sketcher.Constraint("Coincident", 2, 2, 3, 1))
sketch8.addConstraint(Sketcher.Constraint("Coincident", 3, 2, 4, 1))
sketch8.addConstraint(Sketcher.Constraint("Coincident", 4, 2, 5, 1))
sketch8.addConstraint(Sketcher.Constraint("Coincident", 5, 2, 6, 1))
sketch8.addConstraint(Sketcher.Constraint("Coincident", 6, 2, 7, 1))
sketch8.addConstraint(Sketcher.Constraint("Coincident", 7, 2, 8, 1))
sketch8.addConstraint(Sketcher.Constraint("Coincident", 8, 2, 9, 1))
sketch8.addConstraint(Sketcher.Constraint("Coincident", 9, 2, 10, 1))
sketch8.addConstraint(Sketcher.Constraint("Coincident", 10, 2, 11, 1))
sketch8.addConstraint(Sketcher.Constraint("Coincident", 11, 2, 0, 1))
sketch8.addConstraint(Sketcher.Constraint("Distance", 0, Q("1 mm")))
sketch8.addConstraint(Sketcher.Constraint("Distance", 3, Q("28 mm")))
sketch8.addConstraint(Sketcher.Constraint("Distance", 8, Q("1 mm")))
sketch8.addConstraint(Sketcher.Constraint("Distance", 10, Q("1 mm")))
sketch8.addConstraint(Sketcher.Constraint("Distance", 12, Q("28 mm")))
sketch8.addConstraint(Sketcher.Constraint("Distance", 2, Q("2.5 mm")))
sketch8.addConstraint(Sketcher.Constraint("Distance", 4, Q("1.25 mm")))
sketch8.addConstraint(Sketcher.Constraint("Distance", 6, Q("1.25 mm")))
sketch8.addConstraint(Sketcher.Constraint("Distance", 5, Q("4.272002 mm")))
sketch8.addConstraint(Sketcher.Constraint("DistanceX", 9, 2, -1, 1, Q("28.692999 mm")))
sketch8.addConstraint(Sketcher.Constraint("DistanceX", 3, 2, 8, 2, Q("0.257001 mm")))
sketch8.addConstraint(Sketcher.Constraint("DistanceY", -1, 1, 1, 2, Q("21.337699 mm")))
sketch8.addConstraint(Sketcher.Constraint("DistanceX", 2, 2, -1, 1, Q("24.147202 mm")))
sketch8.addConstraint(Sketcher.Constraint("DistanceX", 0, 2, 2, 2, Q("2.519101 mm")))
sketch8.addConstraint(Sketcher.Constraint("DistanceY", 0, 2, 9, 2, Q("5.735198 mm")))
sketch8.addConstraint(Sketcher.Constraint("Distance", 7, Q("5.84097 mm")))
sketch8.addConstraint(Sketcher.Constraint("DistanceX", 1, 2, -1, 1, Q("26.609221 mm")))
sketch8.addConstraint(Sketcher.Constraint("DistanceX", 3, 2, -1, 1, Q("29.009351 mm")))
sketch8.addConstraint(Sketcher.Constraint("DistanceX", 4, 2, -1, 1, Q("30.24036 mm")))
sketch8.addConstraint(Sketcher.Constraint("DistanceX", 5, 2, -1, 1, Q("31.022979 mm")))
sketch8.addConstraint(Sketcher.Constraint("DistanceX", 6, 2, -1, 1, Q("29.79197 mm")))
sketch8.addConstraint(Sketcher.Constraint("DistanceY", -1, 1, 8, 2, Q("39.479669 mm")))
sketch8.addConstraint(Sketcher.Constraint("DistanceX", 10, 2, -1, 1, Q("27.708191 mm")))
sketch8.addConstraint(Sketcher.Constraint("DistanceY", -1, 1, 10, 2, Q("33.32904 mm")))
sketch8.addConstraint(Sketcher.Constraint("DistanceX", 11, 2, -1, 1, Q("27.65111 mm")))
sketch8.addConstraint(Sketcher.Constraint("DistanceX", 12, 1, -1, 1, Q("16.26874 mm")))
sketch8.addConstraint(Sketcher.Constraint("DistanceX", 12, 2, -1, 1, Q("21.130889 mm")))
sketch8.addConstraint(Sketcher.Constraint("DistanceY", 12, 1, 0, 2, Q("4.259189 mm")))
sketch8.setExpression("Constraints[12]", "Params.sketch8_length")
sketch8.setExpression("Constraints[13]", "Params.sketch8_length2")
sketch8.setExpression("Constraints[14]", "Params.sketch8_length3")
sketch8.setExpression("Constraints[15]", "Params.sketch8_length4")
sketch8.setExpression("Constraints[16]", "Params.sketch8_length5")
revolution2 = body.newObject("PartDesign::Revolution", "Revolution001")
revolution2.Profile = sketch8
revolution2.ReferenceAxis = (sketch8, ["Axis0"])
revolution2.setExpression("Angle", "Params.revolution2_angle")

# Sketch on YZ plane
sketch9 = body.newObject("Sketcher::SketchObject", "Sketch008")
sketch9.AttachmentSupport = (doc.getObject("YZ_Plane"), [""])
sketch9.MapMode = "FlatFace"
sketch9.AttachmentOffset = App.Placement(Vector(0, 0, -20), App.Rotation())
sketch9.addGeometry(Part.ArcOfCircle(Part.Circle(Vector(0, 0, 0), Vector(0, 0, 1), 20), math.radians(174), math.radians(456)), False)
sketch9.addGeometry(Part.ArcOfCircle(Part.Circle(Vector(12, -12, 0), Vector(0, 0, 1), 36), math.radians(114), math.radians(156)), False)
sketch9.addConstraint(Sketcher.Constraint("Coincident", 0, 1, 1, 2))
sketch9.addConstraint(Sketcher.Constraint("Coincident", 1, 1, 0, 2))
sketch9.addConstraint(Sketcher.Constraint("Coincident", 0, 3, -1, 1))
sketch9.addConstraint(Sketcher.Constraint("Radius", 0, Q("20.5 mm")))
sketch9.addConstraint(Sketcher.Constraint("Radius", 1, Q("35.513619 mm")))
sketch9.addConstraint(Sketcher.Constraint("DistanceX", 0, 1, -1, 1, Q("20.37394 mm")))
sketch9.addConstraint(Sketcher.Constraint("DistanceX", 1, 1, -1, 1, Q("2.269931 mm")))
sketch9.setExpression("Constraints[3]", "Params.sketch9_radius")
pocket3 = body.newObject("PartDesign::Pocket", "Pocket002")
pocket3.Profile = sketch9
pocket3.setExpression("Length", "Params.pocket3_length")
pocket3.Reversed = True

# Sketch on an angled plane
sketch10 = body.newObject("Sketcher::SketchObject", "Sketch009")
sketch10.Placement = App.Placement(Vector(0, -4.451328, 25.244734), App.Rotation(Vector(1, 0, 0), Vector(0, 0.984807753, 0.173648178), Vector(0, -0.173648178, 0.984807753), "ZXY"))
sketch10.addGeometry(Part.Circle(Vector(-10, -12, 0), Vector(0, 0, 1), 8), False)
sketch10.addConstraint(Sketcher.Constraint("Diameter", 0, Q("16 mm")))
sketch10.addConstraint(Sketcher.Constraint("DistanceX", 0, 3, -1, 1, Q("10 mm")))
sketch10.addConstraint(Sketcher.Constraint("DistanceY", 0, 3, -1, 1, Q("11.999715 mm")))
sketch10.setExpression("Constraints[0]", "Params.sketch10_diameter")
pocket4 = body.newObject("PartDesign::Pocket", "Pocket003")
pocket4.Profile = sketch10
pocket4.setExpression("Length", "Params.pocket4_length")

# Sketch on YZ plane
sketch11 = body.newObject("Sketcher::SketchObject", "Sketch010")
sketch11.AttachmentSupport = (doc.getObject("YZ_Plane"), [""])
sketch11.MapMode = "FlatFace"
sketch11.AttachmentOffset = App.Placement(Vector(0, 0, -21), App.Rotation())
sketch11.addGeometry(Part.Circle(Vector(0, 0, 0), Vector(0, 0, 1), 8), False)
sketch11.addConstraint(Sketcher.Constraint("Coincident", 0, 3, -1, 1))
sketch11.addConstraint(Sketcher.Constraint("Diameter", 0, Q("16 mm")))
sketch11.setExpression("Constraints[1]", "Params.sketch11_diameter")
pocket5 = body.newObject("PartDesign::Pocket", "Pocket004")
pocket5.Profile = sketch11
pocket5.setExpression("Length", "Params.pocket5_length")
pocket5.Reversed = True

# Sketch on an angled plane
sketch12 = body.newObject("Sketcher::SketchObject", "Sketch011")
sketch12.Placement = App.Placement(Vector(0, -9.313477, 52.819351), App.Rotation(Vector(1, 0, 0), Vector(0, 0.984807753, 0.173648178), Vector(0, -0.173648178, 0.984807753), "ZXY"))
sketch12.addGeometry(Part.Circle(Vector(-10, -12, 0), Vector(0, 0, 1), 8), False)
sketch12.addGeometry(Part.Circle(Vector(-10, -12, 0), Vector(0, 0, 1), 8), False)
sketch12.addConstraint(Sketcher.Constraint("Coincident", 1, 3, 0, 3))
sketch12.addConstraint(Sketcher.Constraint("Diameter", 0, Q("17 mm")))
sketch12.addConstraint(Sketcher.Constraint("Diameter", 1, Q("16 mm")))
sketch12.addConstraint(Sketcher.Constraint("DistanceX", 0, 3, -1, 1, Q("10 mm")))
sketch12.addConstraint(Sketcher.Constraint("DistanceY", 0, 3, -1, 1, Q("11.999715 mm")))
sketch12.setExpression("Constraints[1]", "Params.sketch12_diameter")
sketch12.setExpression("Constraints[2]", "Params.sketch12_diameter2")
pocket6 = body.newObject("PartDesign::Pocket", "Pocket005")
pocket6.Profile = sketch12
pocket6.setExpression("Length", "Params.pocket6_length")

doc.recompute()
